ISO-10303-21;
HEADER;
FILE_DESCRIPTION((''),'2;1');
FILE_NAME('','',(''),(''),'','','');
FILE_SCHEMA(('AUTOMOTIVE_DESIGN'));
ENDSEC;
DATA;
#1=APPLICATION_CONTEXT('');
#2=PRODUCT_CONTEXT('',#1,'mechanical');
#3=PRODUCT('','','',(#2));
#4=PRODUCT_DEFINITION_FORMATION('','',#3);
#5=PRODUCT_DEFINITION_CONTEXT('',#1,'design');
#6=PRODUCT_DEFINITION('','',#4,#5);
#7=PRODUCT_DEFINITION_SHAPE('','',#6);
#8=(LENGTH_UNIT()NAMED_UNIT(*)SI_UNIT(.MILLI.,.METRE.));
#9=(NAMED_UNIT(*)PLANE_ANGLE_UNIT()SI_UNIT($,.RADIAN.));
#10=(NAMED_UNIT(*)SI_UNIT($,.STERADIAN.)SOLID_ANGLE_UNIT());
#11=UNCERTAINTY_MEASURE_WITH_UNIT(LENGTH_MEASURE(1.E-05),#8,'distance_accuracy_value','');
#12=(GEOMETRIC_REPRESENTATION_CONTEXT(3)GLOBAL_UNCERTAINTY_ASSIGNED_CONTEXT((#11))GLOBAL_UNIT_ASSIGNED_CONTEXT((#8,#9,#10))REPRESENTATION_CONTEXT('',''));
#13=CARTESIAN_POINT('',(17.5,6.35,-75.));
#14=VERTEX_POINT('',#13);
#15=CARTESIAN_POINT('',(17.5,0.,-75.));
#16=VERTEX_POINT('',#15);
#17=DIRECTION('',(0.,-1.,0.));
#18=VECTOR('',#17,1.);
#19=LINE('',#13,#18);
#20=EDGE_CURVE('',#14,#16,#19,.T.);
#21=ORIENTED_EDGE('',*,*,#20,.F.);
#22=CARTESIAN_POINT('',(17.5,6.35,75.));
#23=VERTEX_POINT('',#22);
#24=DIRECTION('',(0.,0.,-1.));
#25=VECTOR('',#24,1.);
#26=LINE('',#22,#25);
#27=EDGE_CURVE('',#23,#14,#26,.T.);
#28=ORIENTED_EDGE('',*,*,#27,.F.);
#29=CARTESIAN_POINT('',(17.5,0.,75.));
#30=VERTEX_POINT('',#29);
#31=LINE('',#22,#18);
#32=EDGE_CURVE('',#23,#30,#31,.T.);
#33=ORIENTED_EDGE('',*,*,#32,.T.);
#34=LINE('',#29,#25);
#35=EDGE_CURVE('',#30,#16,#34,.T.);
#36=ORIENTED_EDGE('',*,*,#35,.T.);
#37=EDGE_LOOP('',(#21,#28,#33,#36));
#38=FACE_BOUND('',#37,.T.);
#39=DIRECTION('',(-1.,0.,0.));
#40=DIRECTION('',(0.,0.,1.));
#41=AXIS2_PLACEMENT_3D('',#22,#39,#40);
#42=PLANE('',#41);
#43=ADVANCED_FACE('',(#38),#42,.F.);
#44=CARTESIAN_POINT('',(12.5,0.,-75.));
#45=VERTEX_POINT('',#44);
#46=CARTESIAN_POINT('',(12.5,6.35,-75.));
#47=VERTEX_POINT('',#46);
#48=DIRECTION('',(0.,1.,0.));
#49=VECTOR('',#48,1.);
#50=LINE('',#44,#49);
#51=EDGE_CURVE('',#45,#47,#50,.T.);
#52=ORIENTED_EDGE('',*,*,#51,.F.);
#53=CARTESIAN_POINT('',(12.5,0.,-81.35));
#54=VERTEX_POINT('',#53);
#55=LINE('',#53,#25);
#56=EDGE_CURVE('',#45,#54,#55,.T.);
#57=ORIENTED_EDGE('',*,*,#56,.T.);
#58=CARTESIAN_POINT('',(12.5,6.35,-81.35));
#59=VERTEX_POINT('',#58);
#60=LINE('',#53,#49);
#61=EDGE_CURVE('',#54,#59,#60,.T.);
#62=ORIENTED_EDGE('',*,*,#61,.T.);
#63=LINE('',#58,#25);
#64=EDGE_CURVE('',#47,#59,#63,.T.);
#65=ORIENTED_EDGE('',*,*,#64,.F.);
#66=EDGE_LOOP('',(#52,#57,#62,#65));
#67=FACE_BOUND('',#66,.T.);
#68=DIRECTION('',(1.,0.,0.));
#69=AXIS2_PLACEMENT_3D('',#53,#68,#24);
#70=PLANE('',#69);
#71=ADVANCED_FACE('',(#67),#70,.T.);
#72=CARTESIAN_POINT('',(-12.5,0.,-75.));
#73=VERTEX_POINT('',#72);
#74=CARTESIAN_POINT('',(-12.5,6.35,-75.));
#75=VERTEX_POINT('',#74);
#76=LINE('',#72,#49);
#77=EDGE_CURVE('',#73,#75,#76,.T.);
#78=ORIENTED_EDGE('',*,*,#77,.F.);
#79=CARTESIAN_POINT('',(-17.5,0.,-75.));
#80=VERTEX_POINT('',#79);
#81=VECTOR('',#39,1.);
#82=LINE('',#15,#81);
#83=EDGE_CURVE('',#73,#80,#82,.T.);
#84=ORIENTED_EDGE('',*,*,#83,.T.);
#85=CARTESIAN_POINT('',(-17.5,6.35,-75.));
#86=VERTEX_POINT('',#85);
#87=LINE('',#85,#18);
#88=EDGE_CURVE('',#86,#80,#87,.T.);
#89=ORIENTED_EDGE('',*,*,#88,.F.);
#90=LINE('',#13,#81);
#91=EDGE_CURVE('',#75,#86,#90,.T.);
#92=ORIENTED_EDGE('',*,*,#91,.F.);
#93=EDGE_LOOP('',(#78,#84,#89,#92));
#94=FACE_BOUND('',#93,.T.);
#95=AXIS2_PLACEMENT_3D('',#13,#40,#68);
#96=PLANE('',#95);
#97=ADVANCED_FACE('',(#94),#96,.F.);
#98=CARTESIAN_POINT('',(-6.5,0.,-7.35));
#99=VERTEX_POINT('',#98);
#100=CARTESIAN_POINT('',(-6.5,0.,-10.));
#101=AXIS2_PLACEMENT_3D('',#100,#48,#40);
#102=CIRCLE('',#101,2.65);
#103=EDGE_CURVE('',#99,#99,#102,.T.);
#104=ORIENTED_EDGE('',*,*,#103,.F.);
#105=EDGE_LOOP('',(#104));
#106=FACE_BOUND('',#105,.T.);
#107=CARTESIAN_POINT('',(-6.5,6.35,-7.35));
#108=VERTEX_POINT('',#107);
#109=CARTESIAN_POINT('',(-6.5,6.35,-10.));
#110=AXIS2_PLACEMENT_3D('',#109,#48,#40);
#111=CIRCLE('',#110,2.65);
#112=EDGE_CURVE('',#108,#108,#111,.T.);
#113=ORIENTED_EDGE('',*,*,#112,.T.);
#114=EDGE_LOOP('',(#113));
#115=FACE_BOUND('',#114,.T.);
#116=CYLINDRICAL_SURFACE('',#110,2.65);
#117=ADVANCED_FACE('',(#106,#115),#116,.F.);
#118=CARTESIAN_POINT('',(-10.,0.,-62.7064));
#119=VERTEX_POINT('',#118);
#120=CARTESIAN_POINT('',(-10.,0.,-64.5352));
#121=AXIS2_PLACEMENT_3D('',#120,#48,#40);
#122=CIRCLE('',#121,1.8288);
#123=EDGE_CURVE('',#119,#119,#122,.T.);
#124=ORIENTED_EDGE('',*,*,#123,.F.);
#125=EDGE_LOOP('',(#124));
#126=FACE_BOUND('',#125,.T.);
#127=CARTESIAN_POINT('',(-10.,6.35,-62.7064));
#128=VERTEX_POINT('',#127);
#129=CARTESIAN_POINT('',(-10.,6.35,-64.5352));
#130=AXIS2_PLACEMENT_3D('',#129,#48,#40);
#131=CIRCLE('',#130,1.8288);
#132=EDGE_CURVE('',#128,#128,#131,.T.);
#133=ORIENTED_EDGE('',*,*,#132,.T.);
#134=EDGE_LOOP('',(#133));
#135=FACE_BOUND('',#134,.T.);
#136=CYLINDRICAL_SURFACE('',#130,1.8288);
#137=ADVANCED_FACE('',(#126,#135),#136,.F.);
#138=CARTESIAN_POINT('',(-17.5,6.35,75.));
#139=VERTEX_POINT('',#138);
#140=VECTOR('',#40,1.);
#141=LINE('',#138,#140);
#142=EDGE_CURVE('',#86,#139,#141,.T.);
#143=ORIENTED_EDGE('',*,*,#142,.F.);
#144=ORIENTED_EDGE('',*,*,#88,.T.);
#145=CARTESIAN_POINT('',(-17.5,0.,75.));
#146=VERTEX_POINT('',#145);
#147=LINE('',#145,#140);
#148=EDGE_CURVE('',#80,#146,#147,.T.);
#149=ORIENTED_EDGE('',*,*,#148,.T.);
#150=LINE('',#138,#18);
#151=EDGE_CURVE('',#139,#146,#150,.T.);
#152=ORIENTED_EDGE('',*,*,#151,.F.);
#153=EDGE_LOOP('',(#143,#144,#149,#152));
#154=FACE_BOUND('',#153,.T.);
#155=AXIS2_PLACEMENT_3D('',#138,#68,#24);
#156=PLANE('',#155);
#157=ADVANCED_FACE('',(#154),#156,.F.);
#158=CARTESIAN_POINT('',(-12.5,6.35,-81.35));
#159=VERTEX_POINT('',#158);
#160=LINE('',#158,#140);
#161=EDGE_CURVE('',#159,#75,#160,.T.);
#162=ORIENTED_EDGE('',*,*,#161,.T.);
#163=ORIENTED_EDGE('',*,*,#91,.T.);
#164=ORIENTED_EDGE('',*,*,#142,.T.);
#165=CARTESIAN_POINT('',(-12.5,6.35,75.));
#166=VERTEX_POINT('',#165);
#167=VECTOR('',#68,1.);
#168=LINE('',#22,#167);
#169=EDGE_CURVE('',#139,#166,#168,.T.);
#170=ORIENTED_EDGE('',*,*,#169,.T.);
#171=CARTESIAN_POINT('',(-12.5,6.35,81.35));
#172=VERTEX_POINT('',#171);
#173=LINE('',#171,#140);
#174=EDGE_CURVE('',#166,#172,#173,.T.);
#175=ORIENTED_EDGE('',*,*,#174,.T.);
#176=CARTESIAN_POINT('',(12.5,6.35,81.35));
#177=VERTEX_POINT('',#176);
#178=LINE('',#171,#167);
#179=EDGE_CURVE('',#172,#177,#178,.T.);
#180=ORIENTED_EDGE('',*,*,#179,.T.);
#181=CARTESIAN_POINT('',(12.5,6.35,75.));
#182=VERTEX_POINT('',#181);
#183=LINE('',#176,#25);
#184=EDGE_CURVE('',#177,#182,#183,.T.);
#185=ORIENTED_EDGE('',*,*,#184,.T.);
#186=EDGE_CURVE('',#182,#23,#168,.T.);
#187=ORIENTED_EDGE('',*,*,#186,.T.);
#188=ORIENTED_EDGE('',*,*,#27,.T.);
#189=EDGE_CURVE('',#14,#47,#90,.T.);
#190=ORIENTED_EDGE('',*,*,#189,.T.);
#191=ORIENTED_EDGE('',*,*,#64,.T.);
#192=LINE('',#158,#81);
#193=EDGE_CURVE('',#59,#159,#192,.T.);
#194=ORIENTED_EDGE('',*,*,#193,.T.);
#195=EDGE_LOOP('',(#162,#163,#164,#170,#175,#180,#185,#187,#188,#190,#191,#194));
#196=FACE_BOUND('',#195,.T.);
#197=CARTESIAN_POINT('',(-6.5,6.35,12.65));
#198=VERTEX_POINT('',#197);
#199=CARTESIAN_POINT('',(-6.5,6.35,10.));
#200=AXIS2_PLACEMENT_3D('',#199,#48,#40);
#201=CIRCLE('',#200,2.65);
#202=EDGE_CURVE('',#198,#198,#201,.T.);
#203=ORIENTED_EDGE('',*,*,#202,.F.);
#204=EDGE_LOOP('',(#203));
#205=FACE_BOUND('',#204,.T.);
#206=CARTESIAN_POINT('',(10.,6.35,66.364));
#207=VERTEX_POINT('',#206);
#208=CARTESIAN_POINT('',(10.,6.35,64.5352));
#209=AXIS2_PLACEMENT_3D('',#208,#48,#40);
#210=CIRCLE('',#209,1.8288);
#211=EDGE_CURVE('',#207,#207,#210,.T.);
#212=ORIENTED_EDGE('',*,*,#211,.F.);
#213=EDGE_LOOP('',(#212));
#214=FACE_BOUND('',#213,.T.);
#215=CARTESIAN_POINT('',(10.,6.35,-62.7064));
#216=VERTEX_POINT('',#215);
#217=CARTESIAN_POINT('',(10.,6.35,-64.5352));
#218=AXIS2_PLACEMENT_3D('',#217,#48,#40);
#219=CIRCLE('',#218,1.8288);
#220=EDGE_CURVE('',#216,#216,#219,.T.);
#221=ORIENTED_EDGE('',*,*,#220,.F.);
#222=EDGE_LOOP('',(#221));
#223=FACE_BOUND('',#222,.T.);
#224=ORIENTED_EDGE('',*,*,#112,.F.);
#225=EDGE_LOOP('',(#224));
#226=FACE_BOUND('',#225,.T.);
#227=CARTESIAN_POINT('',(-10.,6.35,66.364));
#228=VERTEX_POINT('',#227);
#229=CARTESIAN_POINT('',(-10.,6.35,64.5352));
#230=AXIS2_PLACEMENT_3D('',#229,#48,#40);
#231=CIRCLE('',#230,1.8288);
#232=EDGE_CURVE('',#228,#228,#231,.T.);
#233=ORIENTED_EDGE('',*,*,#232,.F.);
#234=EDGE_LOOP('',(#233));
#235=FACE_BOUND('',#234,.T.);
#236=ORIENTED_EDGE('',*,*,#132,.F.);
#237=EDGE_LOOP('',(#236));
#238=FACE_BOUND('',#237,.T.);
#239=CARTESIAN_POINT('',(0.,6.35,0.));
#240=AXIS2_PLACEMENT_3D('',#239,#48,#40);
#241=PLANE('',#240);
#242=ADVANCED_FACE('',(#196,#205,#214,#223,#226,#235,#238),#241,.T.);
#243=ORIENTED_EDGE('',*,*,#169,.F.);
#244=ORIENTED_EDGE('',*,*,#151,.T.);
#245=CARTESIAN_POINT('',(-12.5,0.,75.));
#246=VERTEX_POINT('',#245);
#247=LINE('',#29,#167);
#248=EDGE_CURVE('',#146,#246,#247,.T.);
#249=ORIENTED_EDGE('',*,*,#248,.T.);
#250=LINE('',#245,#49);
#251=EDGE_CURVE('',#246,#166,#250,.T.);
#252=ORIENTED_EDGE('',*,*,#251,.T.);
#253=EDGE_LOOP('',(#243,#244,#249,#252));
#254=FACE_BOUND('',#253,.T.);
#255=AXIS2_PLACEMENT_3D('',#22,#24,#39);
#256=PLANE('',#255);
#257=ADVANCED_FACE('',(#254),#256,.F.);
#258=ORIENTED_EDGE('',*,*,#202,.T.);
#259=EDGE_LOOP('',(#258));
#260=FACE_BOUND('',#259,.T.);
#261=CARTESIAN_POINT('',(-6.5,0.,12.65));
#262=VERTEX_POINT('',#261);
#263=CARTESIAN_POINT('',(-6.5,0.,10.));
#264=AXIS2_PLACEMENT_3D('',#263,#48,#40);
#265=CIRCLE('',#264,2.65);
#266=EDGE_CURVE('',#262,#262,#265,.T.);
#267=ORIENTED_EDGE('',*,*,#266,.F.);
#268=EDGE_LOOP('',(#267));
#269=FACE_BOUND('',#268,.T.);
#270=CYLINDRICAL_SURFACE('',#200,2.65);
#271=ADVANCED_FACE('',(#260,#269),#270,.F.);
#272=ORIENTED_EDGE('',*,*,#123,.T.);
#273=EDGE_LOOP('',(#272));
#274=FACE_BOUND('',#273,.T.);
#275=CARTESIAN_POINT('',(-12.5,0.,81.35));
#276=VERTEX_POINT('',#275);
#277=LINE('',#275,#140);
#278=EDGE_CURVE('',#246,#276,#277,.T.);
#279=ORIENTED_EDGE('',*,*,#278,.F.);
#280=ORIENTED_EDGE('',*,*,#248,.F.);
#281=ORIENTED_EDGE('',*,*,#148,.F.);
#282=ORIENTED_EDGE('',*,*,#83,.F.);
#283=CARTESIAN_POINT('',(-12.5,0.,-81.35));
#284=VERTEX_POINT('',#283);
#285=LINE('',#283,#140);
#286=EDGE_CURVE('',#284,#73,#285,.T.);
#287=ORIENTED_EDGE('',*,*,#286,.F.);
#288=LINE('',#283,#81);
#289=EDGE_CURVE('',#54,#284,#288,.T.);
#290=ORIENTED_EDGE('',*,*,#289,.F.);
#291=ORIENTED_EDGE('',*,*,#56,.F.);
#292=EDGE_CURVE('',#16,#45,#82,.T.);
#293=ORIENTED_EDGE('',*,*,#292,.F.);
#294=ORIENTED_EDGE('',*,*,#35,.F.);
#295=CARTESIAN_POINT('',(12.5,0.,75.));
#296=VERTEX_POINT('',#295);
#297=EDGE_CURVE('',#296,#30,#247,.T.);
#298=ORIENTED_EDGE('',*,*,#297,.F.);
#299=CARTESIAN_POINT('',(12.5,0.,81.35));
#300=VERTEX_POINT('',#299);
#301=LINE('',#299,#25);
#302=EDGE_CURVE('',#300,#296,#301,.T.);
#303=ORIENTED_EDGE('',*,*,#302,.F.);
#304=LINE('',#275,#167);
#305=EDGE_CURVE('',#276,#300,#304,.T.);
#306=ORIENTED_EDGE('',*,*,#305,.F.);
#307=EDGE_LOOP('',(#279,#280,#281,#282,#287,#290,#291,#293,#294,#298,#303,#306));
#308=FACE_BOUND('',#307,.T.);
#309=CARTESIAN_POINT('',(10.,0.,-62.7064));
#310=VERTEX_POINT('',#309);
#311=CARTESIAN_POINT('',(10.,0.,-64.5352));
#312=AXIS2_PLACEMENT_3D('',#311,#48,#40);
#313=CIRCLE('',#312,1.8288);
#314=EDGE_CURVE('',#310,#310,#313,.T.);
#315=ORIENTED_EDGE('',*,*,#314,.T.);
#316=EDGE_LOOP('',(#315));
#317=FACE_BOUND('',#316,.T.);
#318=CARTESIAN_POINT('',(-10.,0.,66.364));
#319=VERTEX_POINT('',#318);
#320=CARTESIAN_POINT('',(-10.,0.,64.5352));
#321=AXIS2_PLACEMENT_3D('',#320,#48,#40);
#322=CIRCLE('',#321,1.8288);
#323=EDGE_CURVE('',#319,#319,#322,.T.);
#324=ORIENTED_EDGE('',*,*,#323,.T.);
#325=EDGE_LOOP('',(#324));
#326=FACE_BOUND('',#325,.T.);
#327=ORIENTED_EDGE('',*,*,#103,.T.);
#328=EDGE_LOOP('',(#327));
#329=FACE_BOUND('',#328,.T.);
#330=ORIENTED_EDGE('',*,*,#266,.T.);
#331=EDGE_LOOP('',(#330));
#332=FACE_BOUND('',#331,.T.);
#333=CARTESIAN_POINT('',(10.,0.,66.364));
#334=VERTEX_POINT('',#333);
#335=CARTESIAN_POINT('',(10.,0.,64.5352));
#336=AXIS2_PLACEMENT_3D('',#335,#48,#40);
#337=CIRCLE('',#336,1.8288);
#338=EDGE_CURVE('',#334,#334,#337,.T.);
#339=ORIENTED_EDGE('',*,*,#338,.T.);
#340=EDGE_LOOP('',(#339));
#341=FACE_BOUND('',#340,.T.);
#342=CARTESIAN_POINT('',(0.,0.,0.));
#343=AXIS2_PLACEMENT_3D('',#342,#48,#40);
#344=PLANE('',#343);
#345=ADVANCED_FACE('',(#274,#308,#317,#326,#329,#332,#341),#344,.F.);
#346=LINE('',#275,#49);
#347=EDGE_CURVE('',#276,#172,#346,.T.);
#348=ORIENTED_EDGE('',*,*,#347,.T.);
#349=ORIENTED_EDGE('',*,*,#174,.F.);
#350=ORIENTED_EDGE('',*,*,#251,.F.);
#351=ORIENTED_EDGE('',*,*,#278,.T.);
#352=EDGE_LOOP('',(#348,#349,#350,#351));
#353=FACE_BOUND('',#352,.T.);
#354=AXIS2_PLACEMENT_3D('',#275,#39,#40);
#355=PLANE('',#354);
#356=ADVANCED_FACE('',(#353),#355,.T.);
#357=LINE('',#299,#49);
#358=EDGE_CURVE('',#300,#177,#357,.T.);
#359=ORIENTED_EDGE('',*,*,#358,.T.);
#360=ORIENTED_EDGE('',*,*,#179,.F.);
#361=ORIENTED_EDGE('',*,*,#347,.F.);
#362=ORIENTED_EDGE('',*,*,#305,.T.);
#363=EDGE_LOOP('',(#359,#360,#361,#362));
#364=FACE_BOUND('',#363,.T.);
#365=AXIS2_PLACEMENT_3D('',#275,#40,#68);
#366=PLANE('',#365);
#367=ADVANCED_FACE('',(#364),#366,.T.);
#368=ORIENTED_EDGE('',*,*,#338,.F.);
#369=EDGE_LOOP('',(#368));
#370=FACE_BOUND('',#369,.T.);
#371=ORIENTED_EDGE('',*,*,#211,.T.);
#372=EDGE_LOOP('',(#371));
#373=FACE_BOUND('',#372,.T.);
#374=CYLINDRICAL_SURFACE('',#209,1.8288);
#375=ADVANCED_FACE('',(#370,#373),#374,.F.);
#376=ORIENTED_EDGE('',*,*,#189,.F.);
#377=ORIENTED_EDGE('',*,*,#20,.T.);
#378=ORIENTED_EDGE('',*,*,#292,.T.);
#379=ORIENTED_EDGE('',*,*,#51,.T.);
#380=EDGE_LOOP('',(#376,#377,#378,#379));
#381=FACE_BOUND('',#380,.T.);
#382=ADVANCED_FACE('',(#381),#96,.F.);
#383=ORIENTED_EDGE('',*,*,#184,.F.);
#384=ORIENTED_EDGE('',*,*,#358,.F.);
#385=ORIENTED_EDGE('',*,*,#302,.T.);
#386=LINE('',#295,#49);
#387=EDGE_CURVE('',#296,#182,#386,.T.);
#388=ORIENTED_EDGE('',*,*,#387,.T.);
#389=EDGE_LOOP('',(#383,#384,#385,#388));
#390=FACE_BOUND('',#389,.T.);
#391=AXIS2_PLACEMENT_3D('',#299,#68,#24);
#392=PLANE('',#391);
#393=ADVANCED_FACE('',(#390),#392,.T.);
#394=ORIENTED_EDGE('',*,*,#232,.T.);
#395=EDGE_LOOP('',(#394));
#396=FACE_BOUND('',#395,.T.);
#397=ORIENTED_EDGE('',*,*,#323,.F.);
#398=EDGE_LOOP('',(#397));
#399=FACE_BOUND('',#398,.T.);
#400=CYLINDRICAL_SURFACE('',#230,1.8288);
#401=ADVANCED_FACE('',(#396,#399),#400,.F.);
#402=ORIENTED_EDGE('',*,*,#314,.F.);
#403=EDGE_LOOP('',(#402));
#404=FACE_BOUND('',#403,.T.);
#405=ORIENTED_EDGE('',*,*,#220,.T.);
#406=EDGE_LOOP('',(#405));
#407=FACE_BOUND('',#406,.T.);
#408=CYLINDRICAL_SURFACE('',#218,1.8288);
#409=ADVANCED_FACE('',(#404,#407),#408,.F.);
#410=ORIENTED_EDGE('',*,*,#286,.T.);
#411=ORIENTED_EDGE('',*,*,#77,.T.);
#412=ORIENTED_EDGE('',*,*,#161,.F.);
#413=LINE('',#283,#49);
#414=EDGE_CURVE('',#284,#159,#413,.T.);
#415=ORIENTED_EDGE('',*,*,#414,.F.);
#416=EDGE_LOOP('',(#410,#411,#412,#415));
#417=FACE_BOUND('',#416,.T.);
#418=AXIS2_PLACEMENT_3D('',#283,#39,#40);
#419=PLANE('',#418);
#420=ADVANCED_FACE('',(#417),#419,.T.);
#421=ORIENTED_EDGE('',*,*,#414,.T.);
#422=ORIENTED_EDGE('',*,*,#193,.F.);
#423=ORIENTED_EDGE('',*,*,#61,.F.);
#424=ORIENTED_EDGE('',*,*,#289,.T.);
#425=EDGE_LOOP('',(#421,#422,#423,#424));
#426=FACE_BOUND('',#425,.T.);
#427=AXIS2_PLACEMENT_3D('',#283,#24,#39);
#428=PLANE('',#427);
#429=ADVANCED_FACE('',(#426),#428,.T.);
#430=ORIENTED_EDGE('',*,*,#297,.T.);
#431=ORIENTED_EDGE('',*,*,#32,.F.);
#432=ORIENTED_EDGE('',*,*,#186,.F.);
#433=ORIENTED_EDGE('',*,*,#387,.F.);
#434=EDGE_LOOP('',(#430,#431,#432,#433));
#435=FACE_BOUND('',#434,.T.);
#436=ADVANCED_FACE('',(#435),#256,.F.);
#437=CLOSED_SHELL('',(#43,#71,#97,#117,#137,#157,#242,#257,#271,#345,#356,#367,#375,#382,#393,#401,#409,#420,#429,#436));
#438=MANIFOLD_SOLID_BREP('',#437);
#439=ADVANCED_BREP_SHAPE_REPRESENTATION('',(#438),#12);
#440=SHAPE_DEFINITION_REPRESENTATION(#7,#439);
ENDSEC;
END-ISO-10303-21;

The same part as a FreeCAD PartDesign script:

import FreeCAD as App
import Part
import Sketcher

V = App.Vector

doc = App.newDocument("Part")
body = doc.addObject("PartDesign::Body", "Body")

sketch1 = doc.addObject("Sketcher::SketchObject", "Sketch")
body.addObject(sketch1)
sketch1.AttachmentSupport = (doc.XZ_Plane, [""])
sketch1.MapMode = "FlatFace"
sketch1.addGeometry(Part.LineSegment(V(-18, -75, 0), V(-18, 75, 0)), False)
sketch1.addGeometry(Part.LineSegment(V(-18, 75, 0), V(18, 75, 0)), False)
sketch1.addGeometry(Part.LineSegment(V(18, 75, 0), V(18, -75, 0)), False)
sketch1.addGeometry(Part.LineSegment(V(18, -75, 0), V(-18, -75, 0)), False)
sketch1.addConstraint(Sketcher.Constraint("Coincident", 0, 2, 1, 1))
sketch1.addConstraint(Sketcher.Constraint("Coincident", 1, 2, 2, 1))
sketch1.addConstraint(Sketcher.Constraint("Coincident", 2, 2, 3, 1))
sketch1.addConstraint(Sketcher.Constraint("Coincident", 3, 2, 0, 1))
sketch1.addConstraint(Sketcher.Constraint("Vertical", 0))
sketch1.addConstraint(Sketcher.Constraint("Horizontal", 1))
sketch1.addConstraint(Sketcher.Constraint("Vertical", 2))
sketch1.addConstraint(Sketcher.Constraint("Horizontal", 3))
sketch1.addConstraint(Sketcher.Constraint("Symmetric", 0, 2, 2, 2, -1, 1))
sketch1.addConstraint(Sketcher.Constraint("DistanceX", 1, 1, 1, 2, 35.0))
sketch1.addConstraint(Sketcher.Constraint("DistanceY", 0, 1, 0, 2, 150.0))
pad1 = doc.addObject("PartDesign::Pad", "Pad")
body.addObject(pad1)
pad1.Profile = sketch1
pad1.Length = 6.35
pad1.Reversed = True

sketch2 = doc.addObject("Sketcher::SketchObject", "Sketch001")
body.addObject(sketch2)
sketch2.AttachmentSupport = (doc.XZ_Plane, [""])
sketch2.MapMode = "FlatFace"
sketch2.AttachmentOffset = App.Placement(V(0, 0, -6.35), App.Rotation())
sketch2.addGeometry(Part.LineSegment(V(-12, 75, 0), V(-12, 81, 0)), False)
sketch2.addGeometry(Part.LineSegment(V(-12, 81, 0), V(12, 81, 0)), False)
sketch2.addGeometry(Part.LineSegment(V(12, 81, 0), V(12, 75, 0)), False)
sketch2.addGeometry(Part.LineSegment(V(12, 75, 0), V(-12, 75, 0)), False)
sketch2.addGeometry(Part.LineSegment(V(-12, -81, 0), V(-12, -75, 0)), False)
sketch2.addGeometry(Part.LineSegment(V(-12, -75, 0), V(12, -75, 0)), False)
sketch2.addGeometry(Part.LineSegment(V(12, -75, 0), V(12, -81, 0)), False)
sketch2.addGeometry(Part.LineSegment(V(12, -81, 0), V(-12, -81, 0)), False)
sketch2.addConstraint(Sketcher.Constraint("Coincident", 0, 2, 1, 1))
sketch2.addConstraint(Sketcher.Constraint("Coincident", 1, 2, 2, 1))
sketch2.addConstraint(Sketcher.Constraint("Coincident", 2, 2, 3, 1))
sketch2.addConstraint(Sketcher.Constraint("Coincident", 3, 2, 0, 1))
sketch2.addConstraint(Sketcher.Constraint("Coincident", 4, 2, 5, 1))
sketch2.addConstraint(Sketcher.Constraint("Coincident", 5, 2, 6, 1))
sketch2.addConstraint(Sketcher.Constraint("Coincident", 6, 2, 7, 1))
sketch2.addConstraint(Sketcher.Constraint("Coincident", 7, 2, 4, 1))
sketch2.addConstraint(Sketcher.Constraint("Vertical", 0))
sketch2.addConstraint(Sketcher.Constraint("Horizontal", 1))
sketch2.addConstraint(Sketcher.Constraint("Vertical", 2))
sketch2.addConstraint(Sketcher.Constraint("Horizontal", 3))
sketch2.addConstraint(Sketcher.Constraint("Vertical", 4))
sketch2.addConstraint(Sketcher.Constraint("Horizontal", 5))
sketch2.addConstraint(Sketcher.Constraint("Vertical", 6))
sketch2.addConstraint(Sketcher.Constraint("Horizontal", 7))
sketch2.addConstraint(Sketcher.Constraint("Symmetric", 2, 2, 4, 2, -1, 1))
sketch2.addConstraint(Sketcher.Constraint("Symmetric", 0, 2, 6, 2, -1, 1))
sketch2.addConstraint(Sketcher.Constraint("Vertical", 3, 2, 4, 2))
sketch2.addConstraint(Sketcher.Constraint("DistanceX", 1, 1, 1, 2, 25.0))
sketch2.addConstraint(Sketcher.Constraint("DistanceY", -1, 1, 2, 2, 75.0))
sketch2.addConstraint(Sketcher.Constraint("DistanceY", 0, 1, 0, 2, 6.35))
pad2 = doc.addObject("PartDesign::Pad", "Pad001")
body.addObject(pad2)
pad2.Profile = sketch2
pad2.Length = 6.35

sketch3 = doc.addObject("Sketcher::SketchObject", "Sketch002")
body.addObject(sketch3)
sketch3.AttachmentSupport = (doc.XZ_Plane, [""])
sketch3.MapMode = "FlatFace"
sketch3.AttachmentOffset = App.Placement(V(0, 0, -6.35), App.Rotation())
sketch3.addGeometry(Part.Circle(V(-10, -64.5, 0), V(0, 0, 1), 1.8), False)
sketch3.addGeometry(Part.Circle(V(10, -64.5, 0), V(0, 0, 1), 1.8), False)
sketch3.addGeometry(Part.Circle(V(10, 64.5, 0), V(0, 0, 1), 1.8), False)
sketch3.addGeometry(Part.Circle(V(-10, 64.5, 0), V(0, 0, 1), 1.8), False)
sketch3.addConstraint(Sketcher.Constraint("Equal", 0, 1))
sketch3.addConstraint(Sketcher.Constraint("Equal", 1, 2))
sketch3.addConstraint(Sketcher.Constraint("Equal", 2, 3))
sketch3.addConstraint(Sketcher.Constraint("Symmetric", 0, 3, 2, 3, -1, 1))
sketch3.addConstraint(Sketcher.Constraint("Symmetric", 1, 3, 3, 3, -1, 1))
sketch3.addConstraint(Sketcher.Constraint("Symmetric", 0, 3, 1, 3, -2))
sketch3.addConstraint(Sketcher.Constraint("DistanceX", 0, 3, -1, 1, 10.0))
sketch3.addConstraint(Sketcher.Constraint("Diameter", 0, 3.6576))
sketch3.addConstraint(Sketcher.Constraint("DistanceY", 0, 3, -1, 1, 64.5352))
doc.recompute()
hole = doc.addObject("PartDesign::Hole", "Hole")
body.addObject(hole)
hole.Profile = sketch3
hole.ThreadType = "None"
hole.Diameter = 3.6576
hole.DepthType = "ThroughAll"
hole.Reversed = True

sketch4 = doc.addObject("Sketcher::SketchObject", "Sketch003")
body.addObject(sketch4)
sketch4.AttachmentSupport = (doc.XZ_Plane, [""])
sketch4.MapMode = "FlatFace"
sketch4.AttachmentOffset = App.Placement(V(0, 0, -6.35), App.Rotation())
sketch4.addGeometry(Part.Circle(V(-6.5, 10, 0), V(0, 0, 1), 2.6), False)
sketch4.addGeometry(Part.Circle(V(-6.5, -10, 0), V(0, 0, 1), 2.6), False)
sketch4.addConstraint(Sketcher.Constraint("Equal", 0, 1))
sketch4.addConstraint(Sketcher.Constraint("Symmetric", 0, 3, 1, 3, -1))
sketch4.addConstraint(Sketcher.Constraint("Diameter", 0, 5.3))
sketch4.addConstraint(Sketcher.Constraint("DistanceY", -1, 1, 0, 3, 10.0))
sketch4.addConstraint(Sketcher.Constraint("DistanceX", 0, 3, -1, 1, 6.5))
doc.recompute()
hole2 = doc.addObject("PartDesign::Hole", "Hole001")
body.addObject(hole2)
hole2.Profile = sketch4
hole2.ThreadType = "None"
hole2.Diameter = 5.3
hole2.DepthType = "ThroughAll"
hole2.Reversed = True

doc.recompute()
